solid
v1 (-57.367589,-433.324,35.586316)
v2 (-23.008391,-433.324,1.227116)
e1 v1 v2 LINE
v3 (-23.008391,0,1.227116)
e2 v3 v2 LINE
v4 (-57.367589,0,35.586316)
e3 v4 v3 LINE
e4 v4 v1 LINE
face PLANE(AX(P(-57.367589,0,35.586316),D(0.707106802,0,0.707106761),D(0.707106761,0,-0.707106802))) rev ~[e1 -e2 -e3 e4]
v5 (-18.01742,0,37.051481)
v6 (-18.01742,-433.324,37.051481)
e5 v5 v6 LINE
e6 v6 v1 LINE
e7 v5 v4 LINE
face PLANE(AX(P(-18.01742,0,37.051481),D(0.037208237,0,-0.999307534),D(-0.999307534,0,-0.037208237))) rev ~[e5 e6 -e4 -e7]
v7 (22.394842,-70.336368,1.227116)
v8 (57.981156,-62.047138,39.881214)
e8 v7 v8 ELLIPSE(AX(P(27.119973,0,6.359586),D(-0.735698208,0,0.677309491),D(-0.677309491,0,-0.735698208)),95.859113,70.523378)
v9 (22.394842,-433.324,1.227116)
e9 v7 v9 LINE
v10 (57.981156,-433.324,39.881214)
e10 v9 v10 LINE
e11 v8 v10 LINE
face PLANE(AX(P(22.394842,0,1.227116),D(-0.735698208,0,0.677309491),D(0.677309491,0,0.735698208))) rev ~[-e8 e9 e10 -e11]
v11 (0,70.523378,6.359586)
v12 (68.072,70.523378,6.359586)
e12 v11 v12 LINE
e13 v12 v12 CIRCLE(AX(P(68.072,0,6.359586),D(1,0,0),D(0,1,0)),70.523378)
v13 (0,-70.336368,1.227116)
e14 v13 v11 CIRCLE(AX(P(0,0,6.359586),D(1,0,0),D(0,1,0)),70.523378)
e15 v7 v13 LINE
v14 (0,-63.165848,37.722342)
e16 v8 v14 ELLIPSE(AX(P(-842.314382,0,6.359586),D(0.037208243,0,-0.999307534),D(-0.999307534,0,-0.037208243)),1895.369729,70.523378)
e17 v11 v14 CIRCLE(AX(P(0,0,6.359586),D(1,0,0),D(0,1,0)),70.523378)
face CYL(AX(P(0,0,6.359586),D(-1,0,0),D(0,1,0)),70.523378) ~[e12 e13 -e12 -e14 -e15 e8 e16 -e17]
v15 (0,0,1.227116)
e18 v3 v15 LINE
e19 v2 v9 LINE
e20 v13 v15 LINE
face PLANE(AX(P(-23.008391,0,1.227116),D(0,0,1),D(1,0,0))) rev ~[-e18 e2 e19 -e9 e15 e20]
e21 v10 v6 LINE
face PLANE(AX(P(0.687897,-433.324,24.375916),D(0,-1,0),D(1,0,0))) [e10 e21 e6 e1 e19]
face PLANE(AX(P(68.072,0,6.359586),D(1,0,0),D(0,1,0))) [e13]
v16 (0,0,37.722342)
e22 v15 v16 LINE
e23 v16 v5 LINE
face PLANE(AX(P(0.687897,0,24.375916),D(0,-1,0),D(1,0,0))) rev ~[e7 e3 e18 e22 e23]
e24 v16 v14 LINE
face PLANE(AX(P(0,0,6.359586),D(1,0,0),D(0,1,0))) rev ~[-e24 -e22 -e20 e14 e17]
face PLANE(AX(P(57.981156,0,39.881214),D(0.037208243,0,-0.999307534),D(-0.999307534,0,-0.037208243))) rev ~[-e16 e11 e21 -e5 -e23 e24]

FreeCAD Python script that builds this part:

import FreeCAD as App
import Part
import Sketcher

V = App.Vector
Q = App.Units.Quantity


def add_polygon(sketch, points):
    """Adds a closed chain of lines whose ends are joined by coincident constraints."""
    first, n = sketch.GeometryCount, len(points)
    for a, b in zip(points, points[1:] + points[:1]):
        sketch.addGeometry(Part.LineSegment(App.Vector(*a, 0), App.Vector(*b, 0)), False)
    for i in range(n):
        sketch.addConstraint(Sketcher.Constraint("Coincident", first + i, 2, first + (i + 1) % n, 1))

doc = App.newDocument("Part")
body = doc.addObject("PartDesign::Body", "Body")

# Sketch on XZ plane
sketch1 = body.newObject("Sketcher::SketchObject", "Sketch")
sketch1.AttachmentSupport = (doc.getObject("XZ_Plane"), [""])
sketch1.MapMode = "FlatFace"
add_polygon(sketch1, [(-57.367589, 35.586316), (-23.008391, 1.227116), (22.394842, 1.227116), (57.981156, 39.881214), (-18.01742, 37.051481)])  # lines 0-4
sketch1.addConstraint([
    Sketcher.Constraint("Horizontal", 1),
    Sketcher.Constraint("Parallel", 3, 4),
    Sketcher.Constraint("Angle", 0, Q("-45.000002 deg")),
    Sketcher.Constraint("Distance", 2, Q("52.540699 mm")),
    Sketcher.Constraint("DistanceX", 4, 2, 0, 2, Q("34.359198 mm")),
    Sketcher.Constraint("DistanceY", 4, 2, 2, 2, Q("4.294898 mm")),
    Sketcher.Constraint("Distance", 3, Q("76.051239 mm")),
    Sketcher.Constraint("DistanceX", 1, 1, 1, 2, Q("45.403233 mm")),
    Sketcher.Constraint("DistanceX", 0, 2, -1, 1, Q("23.008391 mm")),
    Sketcher.Constraint("DistanceY", -1, 1, 3, 2, Q("37.051481 mm")),
])
pad1 = body.newObject("PartDesign::Pad", "Pad")
pad1.Profile = sketch1
pad1.Length = Q("17.06 in")

# Sketch on YZ plane
sketch2 = body.newObject("Sketcher::SketchObject", "Sketch001")
sketch2.AttachmentSupport = (doc.getObject("YZ_Plane"), [""])
sketch2.MapMode = "FlatFace"
sketch2.addGeometry(Part.Circle(V(0, 6.359586, 0), V(0, 0, 1), 70.523378), False)
sketch2.addConstraint([
    Sketcher.Constraint("PointOnObject", 0, 3, -2),
    Sketcher.Constraint("Diameter", 0, Q("141.046756 mm")),
    Sketcher.Constraint("DistanceY", -1, 1, 0, 3, Q("6.359586 mm")),
])
pad2 = body.newObject("PartDesign::Pad", "Pad001")
pad2.Profile = sketch2
pad2.Length = Q("2.68 in")

doc.recompute()
